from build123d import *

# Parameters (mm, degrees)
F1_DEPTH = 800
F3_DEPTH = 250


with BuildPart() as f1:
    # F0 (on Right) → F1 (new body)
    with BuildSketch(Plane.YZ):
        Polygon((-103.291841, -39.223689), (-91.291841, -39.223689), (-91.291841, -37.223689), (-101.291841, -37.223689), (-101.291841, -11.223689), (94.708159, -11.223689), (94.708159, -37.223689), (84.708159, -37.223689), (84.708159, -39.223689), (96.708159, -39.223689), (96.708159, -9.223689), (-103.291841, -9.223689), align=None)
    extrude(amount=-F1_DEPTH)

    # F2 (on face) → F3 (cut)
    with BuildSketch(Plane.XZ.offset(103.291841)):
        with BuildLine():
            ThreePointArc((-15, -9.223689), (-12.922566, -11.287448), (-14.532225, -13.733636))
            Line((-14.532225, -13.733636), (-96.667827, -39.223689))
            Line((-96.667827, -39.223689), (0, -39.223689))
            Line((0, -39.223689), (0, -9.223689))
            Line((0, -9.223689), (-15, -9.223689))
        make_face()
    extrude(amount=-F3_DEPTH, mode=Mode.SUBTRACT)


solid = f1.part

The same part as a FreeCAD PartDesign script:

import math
import FreeCAD as App
import Part
import Sketcher
from FreeCAD import Vector
Q = App.Units.Quantity


def add_polygon(sketch, points):
    """Adds a closed chain of lines whose ends are joined by coincident constraints."""
    first, n = sketch.GeometryCount, len(points)
    for a, b in zip(points, points[1:] + points[:1]):
        sketch.addGeometry(Part.LineSegment(App.Vector(*a, 0), App.Vector(*b, 0)), False)
    for i in range(n):
        sketch.addConstraint(Sketcher.Constraint("Coincident", first + i, 2, first + (i + 1) % n, 1))

doc = App.newDocument("Part")
body = doc.addObject("PartDesign::Body", "Body")

# Sketch on YZ plane
sketch1 = body.newObject("Sketcher::SketchObject", "Sketch")
sketch1.AttachmentSupport = (doc.getObject("YZ_Plane"), [""])
sketch1.MapMode = "FlatFace"
add_polygon(sketch1, [(-103.291841, -39.223689), (-91.291841, -39.223689), (-91.291841, -37.223689), (-101.291841, -37.223689), (-101.291841, -11.223689), (94.708159, -11.223689), (94.708159, -37.223689), (84.708159, -37.223689), (84.708159, -39.223689), (96.708159, -39.223689), (96.708159, -9.223689), (-103.291841, -9.223689)])  # lines 0-11
sketch1.addConstraint([
    Sketcher.Constraint("Horizontal", 0),
    Sketcher.Constraint("Vertical", 1),
    Sketcher.Constraint("Horizontal", 2),
    Sketcher.Constraint("Vertical", 3),
    Sketcher.Constraint("Horizontal", 4),
    Sketcher.Constraint("Vertical", 5),
    Sketcher.Constraint("Horizontal", 6),
    Sketcher.Constraint("Vertical", 7),
    Sketcher.Constraint("Horizontal", 8),
    Sketcher.Constraint("Vertical", 9),
    Sketcher.Constraint("Horizontal", 10),
    Sketcher.Constraint("Vertical", 11),
    Sketcher.Constraint("Horizontal", 2, 2, 5, 2),
    Sketcher.Constraint("Horizontal", 0, 2, 7, 2),
    Sketcher.Constraint("Equal", 2, 6),
    Sketcher.Constraint("Equal", 0, 8),
    Sketcher.Constraint("DistanceX", 0, 1, 0, 2, Q("12 mm")),
    Sketcher.Constraint("DistanceX", 2, 2, 2, 1, Q("10 mm")),
    Sketcher.Constraint("DistanceX", 4, 1, 4, 2, Q("196 mm")),
    Sketcher.Constraint("DistanceY", 1, 1, 1, 2, Q("2 mm")),
    Sketcher.Constraint("DistanceY", 3, 1, 3, 2, Q("26 mm")),
    Sketcher.Constraint("DistanceY", 9, 1, 9, 2, Q("30 mm")),
    Sketcher.Constraint("DistanceX", 0, 2, -1, 1, Q("91.291841 mm")),
    Sketcher.Constraint("DistanceY", 0, 2, -1, 1, Q("39.223689 mm")),
])
pad1 = body.newObject("PartDesign::Pad", "Pad")
pad1.Profile = sketch1
pad1.Length = 800
pad1.Reversed = True

# Sketch on XZ plane
sketch2 = body.newObject("Sketcher::SketchObject", "Sketch001")
sketch2.AttachmentSupport = (doc.getObject("XZ_Plane"), [""])
sketch2.MapMode = "FlatFace"
sketch2.AttachmentOffset = App.Placement(Vector(0, 0, 103.291841), App.Rotation())
sketch2.addGeometry([
    Part.ArcOfCircle(Part.Circle(Vector(-15.223449, -11.526098, 0), Vector(0, 0, 1), 2.313226), math.radians(-72.613631), math.radians(84.456803)),  # 0
    Part.LineSegment(Vector(-14.532225, -13.733636, 0), Vector(-96.667827, -39.223689, 0)),  # 1
    Part.LineSegment(Vector(-96.667827, -39.223689, 0), Vector(0, -39.223689, 0)),  # 2
    Part.LineSegment(Vector(0, -39.223689, 0), Vector(0, -9.223689, 0)),  # 3
    Part.LineSegment(Vector(0, -9.223689, 0), Vector(-15, -9.223689, 0)),  # 4
], False)
sketch2.addConstraint([
    Sketcher.Constraint("Coincident", 0, 1, 1, 1),
    Sketcher.Constraint("Coincident", 1, 2, 2, 1),
    Sketcher.Constraint("Coincident", 2, 2, 3, 1),
    Sketcher.Constraint("Coincident", 3, 2, 4, 1),
    Sketcher.Constraint("Coincident", 4, 2, 0, 2),
    Sketcher.Constraint("Horizontal", 2),
    Sketcher.Constraint("Vertical", 3),
    Sketcher.Constraint("Horizontal", 4),
    Sketcher.Constraint("PointOnObject", 2, 2, -2),
    Sketcher.Constraint("DistanceX", 4, 2, 4, 1, Q("15 mm")),
    Sketcher.Constraint("DistanceY", 3, 1, 3, 2, Q("30 mm")),
    Sketcher.Constraint("Distance", 1, Q("86 mm")),
    Sketcher.Constraint("Radius", 0, Q("2.313226 mm")),
    Sketcher.Constraint("DistanceX", 2, 1, 2, 2, Q("96.667827 mm")),
    Sketcher.Constraint("DistanceX", 0, 3, -1, 1, Q("15.223449 mm")),
    Sketcher.Constraint("DistanceY", 1, 2, -1, 1, Q("39.223689 mm")),
])
pocket1 = body.newObject("PartDesign::Pocket", "Pocket")
pocket1.Profile = sketch2
pocket1.Length = 250

doc.recompute()
